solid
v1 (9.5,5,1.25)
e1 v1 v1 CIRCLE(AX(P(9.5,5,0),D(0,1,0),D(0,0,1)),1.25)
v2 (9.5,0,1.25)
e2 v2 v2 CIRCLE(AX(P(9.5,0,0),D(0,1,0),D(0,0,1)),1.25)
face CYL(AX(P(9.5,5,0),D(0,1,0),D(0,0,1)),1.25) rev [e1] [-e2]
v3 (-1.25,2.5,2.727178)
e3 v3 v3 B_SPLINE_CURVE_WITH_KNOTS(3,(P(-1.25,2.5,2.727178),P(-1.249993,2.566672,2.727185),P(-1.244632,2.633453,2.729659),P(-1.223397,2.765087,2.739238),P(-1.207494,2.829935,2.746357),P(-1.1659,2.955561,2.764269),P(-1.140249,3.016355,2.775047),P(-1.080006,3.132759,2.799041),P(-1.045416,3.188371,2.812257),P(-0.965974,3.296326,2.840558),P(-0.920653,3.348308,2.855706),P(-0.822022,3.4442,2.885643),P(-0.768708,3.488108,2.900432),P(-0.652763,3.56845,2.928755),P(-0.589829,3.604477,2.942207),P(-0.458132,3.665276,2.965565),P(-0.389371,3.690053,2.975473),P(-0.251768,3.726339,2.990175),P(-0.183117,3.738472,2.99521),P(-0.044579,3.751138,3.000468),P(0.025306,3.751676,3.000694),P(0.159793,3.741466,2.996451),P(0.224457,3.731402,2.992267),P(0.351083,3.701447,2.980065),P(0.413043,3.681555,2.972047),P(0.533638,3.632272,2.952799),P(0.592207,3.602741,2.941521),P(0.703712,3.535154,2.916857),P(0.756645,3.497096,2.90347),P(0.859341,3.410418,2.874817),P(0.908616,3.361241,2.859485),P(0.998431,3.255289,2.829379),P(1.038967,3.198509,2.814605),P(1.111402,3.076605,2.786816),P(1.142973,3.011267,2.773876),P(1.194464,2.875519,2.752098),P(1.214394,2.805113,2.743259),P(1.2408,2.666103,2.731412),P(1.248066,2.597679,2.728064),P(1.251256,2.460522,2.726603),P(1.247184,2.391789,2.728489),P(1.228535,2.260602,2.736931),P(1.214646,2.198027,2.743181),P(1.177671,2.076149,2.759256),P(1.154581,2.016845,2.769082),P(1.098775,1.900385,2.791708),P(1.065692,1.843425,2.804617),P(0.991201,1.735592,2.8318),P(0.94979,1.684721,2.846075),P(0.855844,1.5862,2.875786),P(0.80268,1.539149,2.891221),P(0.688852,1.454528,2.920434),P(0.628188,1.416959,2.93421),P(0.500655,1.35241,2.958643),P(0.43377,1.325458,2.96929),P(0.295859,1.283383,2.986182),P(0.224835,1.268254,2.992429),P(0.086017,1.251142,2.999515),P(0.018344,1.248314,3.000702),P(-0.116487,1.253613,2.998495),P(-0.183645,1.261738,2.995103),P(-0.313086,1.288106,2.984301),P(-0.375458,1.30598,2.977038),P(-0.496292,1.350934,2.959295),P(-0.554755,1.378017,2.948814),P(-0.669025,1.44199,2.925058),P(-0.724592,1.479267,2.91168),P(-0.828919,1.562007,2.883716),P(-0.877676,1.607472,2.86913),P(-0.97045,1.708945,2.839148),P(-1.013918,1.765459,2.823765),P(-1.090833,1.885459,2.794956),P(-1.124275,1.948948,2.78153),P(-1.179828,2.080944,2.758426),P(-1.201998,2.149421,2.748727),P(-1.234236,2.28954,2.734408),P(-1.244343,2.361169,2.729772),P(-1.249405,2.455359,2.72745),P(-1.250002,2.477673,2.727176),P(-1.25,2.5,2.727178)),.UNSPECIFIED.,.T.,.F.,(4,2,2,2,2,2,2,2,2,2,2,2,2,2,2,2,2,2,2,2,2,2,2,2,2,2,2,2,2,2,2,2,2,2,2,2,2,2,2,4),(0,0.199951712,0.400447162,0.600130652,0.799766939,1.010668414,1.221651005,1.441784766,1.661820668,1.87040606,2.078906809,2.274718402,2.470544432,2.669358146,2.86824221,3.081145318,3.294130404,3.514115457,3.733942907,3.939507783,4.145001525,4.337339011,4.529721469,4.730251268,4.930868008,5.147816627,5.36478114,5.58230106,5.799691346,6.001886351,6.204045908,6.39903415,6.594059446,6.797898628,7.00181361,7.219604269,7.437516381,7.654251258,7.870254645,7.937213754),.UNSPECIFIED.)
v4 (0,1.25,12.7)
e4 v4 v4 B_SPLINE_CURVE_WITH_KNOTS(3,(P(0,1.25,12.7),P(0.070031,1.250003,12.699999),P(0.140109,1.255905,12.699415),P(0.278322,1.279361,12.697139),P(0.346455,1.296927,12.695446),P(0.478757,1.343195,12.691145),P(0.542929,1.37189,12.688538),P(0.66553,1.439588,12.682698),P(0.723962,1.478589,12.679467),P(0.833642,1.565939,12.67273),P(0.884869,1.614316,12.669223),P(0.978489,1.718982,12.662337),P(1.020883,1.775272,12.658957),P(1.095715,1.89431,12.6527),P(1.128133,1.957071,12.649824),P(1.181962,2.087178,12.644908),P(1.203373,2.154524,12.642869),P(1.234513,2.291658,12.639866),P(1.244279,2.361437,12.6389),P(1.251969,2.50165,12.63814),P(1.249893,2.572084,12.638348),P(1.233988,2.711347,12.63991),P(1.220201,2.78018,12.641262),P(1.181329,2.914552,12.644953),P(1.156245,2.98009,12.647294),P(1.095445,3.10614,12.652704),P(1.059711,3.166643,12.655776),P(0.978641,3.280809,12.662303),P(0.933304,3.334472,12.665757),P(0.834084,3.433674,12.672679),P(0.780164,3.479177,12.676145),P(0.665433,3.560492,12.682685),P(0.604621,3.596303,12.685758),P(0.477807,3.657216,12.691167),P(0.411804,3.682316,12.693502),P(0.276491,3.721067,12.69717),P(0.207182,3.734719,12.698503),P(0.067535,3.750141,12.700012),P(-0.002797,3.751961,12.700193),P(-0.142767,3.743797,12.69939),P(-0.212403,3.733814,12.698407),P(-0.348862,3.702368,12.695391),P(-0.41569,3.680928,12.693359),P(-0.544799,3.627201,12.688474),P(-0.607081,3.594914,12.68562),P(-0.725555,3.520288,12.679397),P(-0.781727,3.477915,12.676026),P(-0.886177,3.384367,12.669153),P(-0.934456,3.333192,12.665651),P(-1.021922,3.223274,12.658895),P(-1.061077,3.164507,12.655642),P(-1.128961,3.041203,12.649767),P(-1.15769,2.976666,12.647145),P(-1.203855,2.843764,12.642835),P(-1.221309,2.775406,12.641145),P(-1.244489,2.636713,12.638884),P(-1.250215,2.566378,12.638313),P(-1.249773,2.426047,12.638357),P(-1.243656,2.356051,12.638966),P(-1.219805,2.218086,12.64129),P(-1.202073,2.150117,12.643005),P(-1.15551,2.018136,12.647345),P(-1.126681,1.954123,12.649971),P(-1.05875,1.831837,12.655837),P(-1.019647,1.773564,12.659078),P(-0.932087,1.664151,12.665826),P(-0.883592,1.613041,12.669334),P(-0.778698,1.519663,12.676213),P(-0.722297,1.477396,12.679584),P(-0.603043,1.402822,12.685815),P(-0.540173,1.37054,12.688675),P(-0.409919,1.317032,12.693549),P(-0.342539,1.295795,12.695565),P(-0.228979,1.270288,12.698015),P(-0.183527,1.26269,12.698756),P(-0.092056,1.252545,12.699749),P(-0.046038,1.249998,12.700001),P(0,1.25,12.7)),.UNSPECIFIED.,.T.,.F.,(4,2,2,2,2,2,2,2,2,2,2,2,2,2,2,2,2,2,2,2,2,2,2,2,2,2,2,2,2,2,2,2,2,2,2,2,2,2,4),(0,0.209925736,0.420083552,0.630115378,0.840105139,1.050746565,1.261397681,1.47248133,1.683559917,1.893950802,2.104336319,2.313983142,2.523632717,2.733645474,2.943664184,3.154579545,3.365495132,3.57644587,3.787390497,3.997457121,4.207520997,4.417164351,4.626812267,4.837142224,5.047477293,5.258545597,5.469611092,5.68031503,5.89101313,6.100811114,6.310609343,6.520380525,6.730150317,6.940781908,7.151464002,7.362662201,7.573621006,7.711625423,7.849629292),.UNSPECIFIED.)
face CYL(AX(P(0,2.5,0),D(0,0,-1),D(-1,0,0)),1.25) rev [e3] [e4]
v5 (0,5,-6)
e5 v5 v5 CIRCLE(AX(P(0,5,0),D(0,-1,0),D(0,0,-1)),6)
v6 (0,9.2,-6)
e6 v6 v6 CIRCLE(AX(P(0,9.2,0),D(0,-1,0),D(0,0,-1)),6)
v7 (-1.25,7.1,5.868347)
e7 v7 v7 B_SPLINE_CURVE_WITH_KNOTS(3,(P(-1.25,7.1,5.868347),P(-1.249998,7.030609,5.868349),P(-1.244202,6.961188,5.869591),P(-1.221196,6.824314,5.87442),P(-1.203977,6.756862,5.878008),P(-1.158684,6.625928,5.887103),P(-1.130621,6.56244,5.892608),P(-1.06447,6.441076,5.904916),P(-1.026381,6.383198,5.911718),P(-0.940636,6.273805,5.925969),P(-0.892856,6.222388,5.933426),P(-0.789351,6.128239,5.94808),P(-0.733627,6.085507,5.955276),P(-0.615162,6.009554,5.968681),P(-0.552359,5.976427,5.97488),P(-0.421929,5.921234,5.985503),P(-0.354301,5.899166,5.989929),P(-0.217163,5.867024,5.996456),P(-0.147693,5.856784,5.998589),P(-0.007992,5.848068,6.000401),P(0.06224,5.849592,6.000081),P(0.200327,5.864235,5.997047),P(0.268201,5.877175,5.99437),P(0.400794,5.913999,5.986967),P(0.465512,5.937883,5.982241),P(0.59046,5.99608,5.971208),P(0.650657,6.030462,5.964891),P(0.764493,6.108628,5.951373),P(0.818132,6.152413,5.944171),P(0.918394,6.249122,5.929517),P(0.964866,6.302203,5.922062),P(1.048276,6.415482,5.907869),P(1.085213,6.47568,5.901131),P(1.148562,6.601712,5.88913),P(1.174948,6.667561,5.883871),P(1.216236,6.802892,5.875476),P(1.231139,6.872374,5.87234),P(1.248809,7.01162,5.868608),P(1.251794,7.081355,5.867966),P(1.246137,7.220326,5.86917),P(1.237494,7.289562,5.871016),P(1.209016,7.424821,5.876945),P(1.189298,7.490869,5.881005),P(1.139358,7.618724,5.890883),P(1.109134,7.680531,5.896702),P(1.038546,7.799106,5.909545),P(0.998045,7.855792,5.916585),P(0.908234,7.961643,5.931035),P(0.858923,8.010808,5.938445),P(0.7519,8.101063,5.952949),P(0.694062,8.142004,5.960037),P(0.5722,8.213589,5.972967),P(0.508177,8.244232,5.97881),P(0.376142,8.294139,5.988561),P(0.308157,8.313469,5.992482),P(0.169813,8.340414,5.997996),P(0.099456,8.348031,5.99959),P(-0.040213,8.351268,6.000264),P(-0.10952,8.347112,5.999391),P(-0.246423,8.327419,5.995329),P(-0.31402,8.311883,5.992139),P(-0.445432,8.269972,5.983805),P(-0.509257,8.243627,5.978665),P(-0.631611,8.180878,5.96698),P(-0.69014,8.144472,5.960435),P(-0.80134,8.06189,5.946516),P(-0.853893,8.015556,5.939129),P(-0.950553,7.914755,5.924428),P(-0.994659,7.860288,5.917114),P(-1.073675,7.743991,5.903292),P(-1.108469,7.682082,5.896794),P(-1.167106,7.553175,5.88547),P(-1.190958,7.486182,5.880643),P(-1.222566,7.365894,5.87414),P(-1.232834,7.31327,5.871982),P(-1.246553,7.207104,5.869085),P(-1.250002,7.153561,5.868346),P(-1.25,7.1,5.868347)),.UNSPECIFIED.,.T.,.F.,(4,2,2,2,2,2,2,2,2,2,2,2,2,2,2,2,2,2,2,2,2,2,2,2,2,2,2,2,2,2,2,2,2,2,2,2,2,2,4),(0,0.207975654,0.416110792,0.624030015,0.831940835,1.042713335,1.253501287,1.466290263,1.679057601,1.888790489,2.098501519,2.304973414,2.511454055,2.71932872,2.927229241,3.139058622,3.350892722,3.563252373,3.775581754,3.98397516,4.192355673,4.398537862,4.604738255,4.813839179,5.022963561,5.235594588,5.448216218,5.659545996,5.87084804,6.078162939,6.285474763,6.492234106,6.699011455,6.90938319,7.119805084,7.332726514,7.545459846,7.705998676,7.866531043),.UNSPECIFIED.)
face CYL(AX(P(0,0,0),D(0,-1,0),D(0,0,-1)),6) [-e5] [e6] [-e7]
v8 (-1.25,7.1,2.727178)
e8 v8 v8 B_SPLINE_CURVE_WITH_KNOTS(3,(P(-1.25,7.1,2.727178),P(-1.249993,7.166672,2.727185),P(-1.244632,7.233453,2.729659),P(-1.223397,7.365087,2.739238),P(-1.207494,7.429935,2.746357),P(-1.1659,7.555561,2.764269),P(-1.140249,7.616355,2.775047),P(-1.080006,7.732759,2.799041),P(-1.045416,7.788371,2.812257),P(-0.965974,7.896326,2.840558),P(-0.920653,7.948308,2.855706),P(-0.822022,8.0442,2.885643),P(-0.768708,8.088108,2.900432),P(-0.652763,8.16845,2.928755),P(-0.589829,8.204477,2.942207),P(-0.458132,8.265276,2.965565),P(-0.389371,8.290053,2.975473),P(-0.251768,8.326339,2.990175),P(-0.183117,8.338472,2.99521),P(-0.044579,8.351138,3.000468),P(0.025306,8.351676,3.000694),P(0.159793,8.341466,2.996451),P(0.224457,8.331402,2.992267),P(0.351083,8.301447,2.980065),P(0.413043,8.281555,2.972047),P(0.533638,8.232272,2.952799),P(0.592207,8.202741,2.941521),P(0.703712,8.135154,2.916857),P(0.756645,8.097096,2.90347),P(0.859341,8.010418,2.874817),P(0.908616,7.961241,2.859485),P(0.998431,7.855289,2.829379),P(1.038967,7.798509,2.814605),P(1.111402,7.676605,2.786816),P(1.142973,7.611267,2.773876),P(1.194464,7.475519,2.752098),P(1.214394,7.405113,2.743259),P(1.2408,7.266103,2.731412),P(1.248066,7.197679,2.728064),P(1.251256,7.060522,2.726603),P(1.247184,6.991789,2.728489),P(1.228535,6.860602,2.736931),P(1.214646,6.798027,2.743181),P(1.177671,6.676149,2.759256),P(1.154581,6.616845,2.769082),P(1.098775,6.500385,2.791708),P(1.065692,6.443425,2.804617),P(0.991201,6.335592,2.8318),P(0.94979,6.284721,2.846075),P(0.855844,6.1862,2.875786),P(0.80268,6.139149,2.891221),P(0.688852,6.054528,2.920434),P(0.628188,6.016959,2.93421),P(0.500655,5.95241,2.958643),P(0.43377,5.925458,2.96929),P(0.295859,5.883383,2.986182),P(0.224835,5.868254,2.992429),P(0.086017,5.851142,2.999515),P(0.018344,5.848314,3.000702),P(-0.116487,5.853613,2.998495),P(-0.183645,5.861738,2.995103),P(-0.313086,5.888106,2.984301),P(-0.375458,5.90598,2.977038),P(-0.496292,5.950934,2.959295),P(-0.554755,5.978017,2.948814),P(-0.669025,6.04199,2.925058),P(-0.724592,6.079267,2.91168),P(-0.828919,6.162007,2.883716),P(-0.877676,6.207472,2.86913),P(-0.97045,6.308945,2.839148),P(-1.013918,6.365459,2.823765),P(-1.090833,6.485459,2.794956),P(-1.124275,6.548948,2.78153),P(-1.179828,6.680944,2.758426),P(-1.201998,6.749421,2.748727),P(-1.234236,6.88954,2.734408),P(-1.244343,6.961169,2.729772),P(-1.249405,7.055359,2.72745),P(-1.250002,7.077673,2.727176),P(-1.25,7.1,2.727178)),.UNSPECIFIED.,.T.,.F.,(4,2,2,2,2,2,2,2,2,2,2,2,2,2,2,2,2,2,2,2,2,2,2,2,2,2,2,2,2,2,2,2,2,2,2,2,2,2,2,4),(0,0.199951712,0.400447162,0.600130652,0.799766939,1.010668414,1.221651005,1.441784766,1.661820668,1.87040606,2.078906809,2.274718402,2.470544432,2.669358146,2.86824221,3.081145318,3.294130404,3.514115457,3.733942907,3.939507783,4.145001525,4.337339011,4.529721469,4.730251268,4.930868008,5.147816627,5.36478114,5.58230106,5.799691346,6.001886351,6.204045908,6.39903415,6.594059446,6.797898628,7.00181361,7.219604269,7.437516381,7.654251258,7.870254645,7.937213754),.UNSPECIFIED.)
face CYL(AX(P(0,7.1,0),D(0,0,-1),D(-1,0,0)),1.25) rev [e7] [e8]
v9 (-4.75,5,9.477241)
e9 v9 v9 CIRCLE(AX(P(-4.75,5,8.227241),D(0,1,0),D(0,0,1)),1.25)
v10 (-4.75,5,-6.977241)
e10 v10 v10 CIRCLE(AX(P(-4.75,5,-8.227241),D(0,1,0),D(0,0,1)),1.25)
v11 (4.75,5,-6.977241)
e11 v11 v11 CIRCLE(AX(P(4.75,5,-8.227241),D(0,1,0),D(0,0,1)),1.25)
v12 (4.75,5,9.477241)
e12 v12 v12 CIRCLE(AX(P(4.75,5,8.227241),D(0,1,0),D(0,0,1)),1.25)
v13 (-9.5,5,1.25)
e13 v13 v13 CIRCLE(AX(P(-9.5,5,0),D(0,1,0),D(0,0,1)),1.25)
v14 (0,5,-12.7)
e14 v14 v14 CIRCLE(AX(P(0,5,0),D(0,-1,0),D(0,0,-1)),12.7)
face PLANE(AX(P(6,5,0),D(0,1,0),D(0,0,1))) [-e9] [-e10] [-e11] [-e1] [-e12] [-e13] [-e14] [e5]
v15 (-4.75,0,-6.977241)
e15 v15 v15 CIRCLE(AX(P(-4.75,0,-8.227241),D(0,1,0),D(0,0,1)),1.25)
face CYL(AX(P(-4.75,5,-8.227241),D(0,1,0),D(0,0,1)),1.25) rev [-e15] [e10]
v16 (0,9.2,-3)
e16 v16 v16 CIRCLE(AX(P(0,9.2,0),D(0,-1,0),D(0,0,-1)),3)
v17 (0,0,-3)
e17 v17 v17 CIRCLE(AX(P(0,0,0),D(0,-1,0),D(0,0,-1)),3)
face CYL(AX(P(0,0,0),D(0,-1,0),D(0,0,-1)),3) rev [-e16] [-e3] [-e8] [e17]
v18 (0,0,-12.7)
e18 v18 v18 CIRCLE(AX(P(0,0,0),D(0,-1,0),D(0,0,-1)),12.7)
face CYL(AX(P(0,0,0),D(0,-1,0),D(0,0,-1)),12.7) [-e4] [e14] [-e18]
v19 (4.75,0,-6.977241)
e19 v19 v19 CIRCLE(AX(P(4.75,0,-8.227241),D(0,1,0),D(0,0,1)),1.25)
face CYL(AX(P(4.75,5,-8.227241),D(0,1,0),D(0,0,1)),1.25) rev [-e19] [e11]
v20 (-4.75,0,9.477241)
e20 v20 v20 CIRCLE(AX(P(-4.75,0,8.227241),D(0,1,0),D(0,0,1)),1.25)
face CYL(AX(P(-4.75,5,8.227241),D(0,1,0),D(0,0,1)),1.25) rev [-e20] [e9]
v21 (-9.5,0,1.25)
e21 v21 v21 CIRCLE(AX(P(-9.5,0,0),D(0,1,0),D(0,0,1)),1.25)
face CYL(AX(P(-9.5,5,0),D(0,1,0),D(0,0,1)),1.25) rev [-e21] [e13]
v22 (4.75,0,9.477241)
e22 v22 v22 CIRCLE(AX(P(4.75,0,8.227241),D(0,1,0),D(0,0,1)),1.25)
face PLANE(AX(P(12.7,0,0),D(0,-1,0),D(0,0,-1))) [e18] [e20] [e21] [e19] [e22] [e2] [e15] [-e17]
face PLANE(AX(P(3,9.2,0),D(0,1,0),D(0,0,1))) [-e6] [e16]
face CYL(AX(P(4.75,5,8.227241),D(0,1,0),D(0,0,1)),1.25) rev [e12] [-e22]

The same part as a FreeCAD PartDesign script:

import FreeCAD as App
import Part
import Sketcher
Q = App.Units.Quantity


def add_polygon(sketch, points):
    """Adds a closed chain of lines whose ends are joined by coincident constraints."""
    first, n = sketch.GeometryCount, len(points)
    for a, b in zip(points, points[1:] + points[:1]):
        sketch.addGeometry(Part.LineSegment(App.Vector(*a, 0), App.Vector(*b, 0)), False)
    for i in range(n):
        sketch.addConstraint(Sketcher.Constraint("Coincident", first + i, 2, first + (i + 1) % n, 1))

doc = App.newDocument("Part")
params = doc.addObject("Spreadsheet::Sheet", "Params")
for row, (alias, value) in enumerate([
    ("sketch1_width", "3 mm"),
    ("sketch1_height", "5 mm"),
    ("sketch1_width2", "9.7 mm"),
    ("sketch1_height2", "9.2 mm"),
    ("revolution_angle", "360 deg"),
    ("sketch2_diameter", "2.5 mm"),
    ("hole_diameter", "2.5 mm"),
    ("sketch3_height", "12.7 mm"),
    ("sketch3_width", "1.25 mm"),
    ("groove_angle", "360 deg"),
    ("linearpattern_pitch", "4.6 mm"),
], start=1):
    params.set(f"A{row}", alias)
    params.set(f"B{row}", "=" + value)
    params.setAlias(f"B{row}", alias)

body = doc.addObject("PartDesign::Body", "Body")

# Sketch on XY plane
sketch1 = doc.addObject("Sketcher::SketchObject", "Sketch")
body.addObject(sketch1)
sketch1.AttachmentSupport = (doc.XY_Plane, [""])
sketch1.MapMode = "FlatFace"
add_polygon(sketch1, [(3, 9.2), (3, 0), (12.7, 0), (12.7, 5), (6, 5), (6, 9.2)])  # lines 0-5
sketch1.addConstraint(Sketcher.Constraint("Vertical", 0))
sketch1.addConstraint(Sketcher.Constraint("Horizontal", 1))
sketch1.addConstraint(Sketcher.Constraint("Vertical", 2))
sketch1.addConstraint(Sketcher.Constraint("Horizontal", 3))
sketch1.addConstraint(Sketcher.Constraint("Vertical", 4))
sketch1.addConstraint(Sketcher.Constraint("Horizontal", 5))
sketch1.addConstraint(Sketcher.Constraint("PointOnObject", 0, 2, -1))
sketch1.addConstraint(Sketcher.Constraint("DistanceX", 5, 2, 5, 1, Q("3 mm")))
sketch1.addConstraint(Sketcher.Constraint("DistanceY", 2, 1, 2, 2, Q("5 mm")))
sketch1.addConstraint(Sketcher.Constraint("DistanceX", 1, 1, 1, 2, Q("9.7 mm")))
sketch1.addConstraint(Sketcher.Constraint("DistanceY", 0, 2, 0, 1, Q("9.2 mm")))
sketch1.addConstraint(Sketcher.Constraint("DistanceX", -1, 1, 0, 2, Q("3 mm")))
sketch1.setExpression("Constraints[13]", "Params.sketch1_width")
sketch1.setExpression("Constraints[14]", "Params.sketch1_height")
sketch1.setExpression("Constraints[15]", "Params.sketch1_width2")
sketch1.setExpression("Constraints[16]", "Params.sketch1_height2")
revolution = doc.addObject("PartDesign::Revolution", "Revolution")
body.addObject(revolution)
revolution.Profile = sketch1
revolution.ReferenceAxis = (sketch1, ["V_Axis"])
revolution.setExpression("Angle", "Params.revolution_angle")

# Sketch on XZ plane
sketch2 = doc.addObject("Sketcher::SketchObject", "Sketch001")
body.addObject(sketch2)
sketch2.AttachmentSupport = (doc.XZ_Plane, [""])
sketch2.MapMode = "FlatFace"
sketch2.AttachmentOffset = App.Placement(App.Vector(0, 0, -5), App.Rotation())
sketch2.addGeometry(Part.Circle(App.Vector(-9.5, 0, 0), App.Vector(0, 0, 1), 1.2), False)
sketch2.addGeometry(Part.Circle(App.Vector(-4.8, -8.2, 0), App.Vector(0, 0, 1), 1.2), False)
sketch2.addGeometry(Part.Circle(App.Vector(4.8, -8.2, 0), App.Vector(0, 0, 1), 1.2), False)
sketch2.addGeometry(Part.Circle(App.Vector(9.5, 0, 0), App.Vector(0, 0, 1), 1.2), False)
sketch2.addGeometry(Part.Circle(App.Vector(4.8, 8.2, 0), App.Vector(0, 0, 1), 1.2), False)
sketch2.addGeometry(Part.Circle(App.Vector(-4.8, 8.2, 0), App.Vector(0, 0, 1), 1.2), False)
sketch2.addConstraint(Sketcher.Constraint("Equal", 0, 1))
sketch2.addConstraint(Sketcher.Constraint("Equal", 1, 2))
sketch2.addConstraint(Sketcher.Constraint("Equal", 2, 3))
sketch2.addConstraint(Sketcher.Constraint("Equal", 3, 4))
sketch2.addConstraint(Sketcher.Constraint("Equal", 4, 5))
sketch2.addConstraint(Sketcher.Constraint("Symmetric", 0, 3, 3, 3, -1, 1))
sketch2.addConstraint(Sketcher.Constraint("Symmetric", 1, 3, 4, 3, -1, 1))
sketch2.addConstraint(Sketcher.Constraint("Symmetric", 2, 3, 5, 3, -1, 1))
sketch2.addConstraint(Sketcher.Constraint("Symmetric", 1, 3, 2, 3, -2))
sketch2.addConstraint(Sketcher.Constraint("PointOnObject", 0, 3, -1))
sketch2.addConstraint(Sketcher.Constraint("Diameter", 0, Q("2.5 mm")))
sketch2.addConstraint(Sketcher.Constraint("DistanceX", 0, 3, 3, 3, Q("19 mm")))
sketch2.addConstraint(Sketcher.Constraint("DistanceX", 1, 3, 2, 3, Q("9.5 mm")))
sketch2.addConstraint(Sketcher.Constraint("DistanceY", 1, 3, -1, 1, Q("8.227241 mm")))
sketch2.setExpression("Constraints[10]", "Params.sketch2_diameter")
doc.recompute()
hole = doc.addObject("PartDesign::Hole", "Hole")
body.addObject(hole)
hole.Profile = sketch2
hole.ThreadType = "None"
hole.setExpression("Diameter", "Params.hole_diameter")
hole.DepthType = "ThroughAll"
hole.Reversed = True

# Sketch on YZ plane
sketch3 = doc.addObject("Sketcher::SketchObject", "Sketch002")
body.addObject(sketch3)
sketch3.AttachmentSupport = (doc.YZ_Plane, [""])
sketch3.MapMode = "FlatFace"
add_polygon(sketch3, [(2.5, 12.7), (2.5, 0), (3.8, 0), (3.8, 12.7)])  # lines 0-3
sketch3.addGeometry(Part.LineSegment(App.Vector(2.5, 0, 0), App.Vector(2.5, 12.7, 0)), True)  # axis
sketch3.addConstraint(Sketcher.Constraint("Vertical", 0))
sketch3.addConstraint(Sketcher.Constraint("Horizontal", 1))
sketch3.addConstraint(Sketcher.Constraint("Vertical", 2))
sketch3.addConstraint(Sketcher.Constraint("Horizontal", 3))
sketch3.addConstraint(Sketcher.Constraint("Vertical", 4))
sketch3.addConstraint(Sketcher.Constraint("Coincident", 4, 1, 0, 2))
sketch3.addConstraint(Sketcher.Constraint("PointOnObject", 0, 2, -1))
sketch3.addConstraint(Sketcher.Constraint("Horizontal", 2, 2, 4, 2))
sketch3.addConstraint(Sketcher.Constraint("DistanceY", 0, 2, 0, 1, Q("12.7 mm")))
sketch3.addConstraint(Sketcher.Constraint("DistanceX", 1, 1, 1, 2, Q("1.25 mm")))
sketch3.addConstraint(Sketcher.Constraint("DistanceX", -1, 1, 0, 2, Q("2.5 mm")))
sketch3.setExpression("Constraints[12]", "Params.sketch3_height")
sketch3.setExpression("Constraints[13]", "Params.sketch3_width")
groove = doc.addObject("PartDesign::Groove", "Groove")
body.addObject(groove)
groove.Profile = sketch3
groove.ReferenceAxis = (sketch3, ["Axis0"])
groove.setExpression("Angle", "Params.groove_angle")
doc.recompute()

linearpattern = doc.addObject("PartDesign::LinearPattern", "LinearPattern")
body.addObject(linearpattern)
linearpattern.Originals = [groove]
linearpattern.Direction = (doc.Y_Axis, [""])
linearpattern.Mode = "offset"
linearpattern.setExpression("Offset", "Params.linearpattern_pitch")
linearpattern.Occurrences = 2
body.Tip = linearpattern

doc.recompute()
